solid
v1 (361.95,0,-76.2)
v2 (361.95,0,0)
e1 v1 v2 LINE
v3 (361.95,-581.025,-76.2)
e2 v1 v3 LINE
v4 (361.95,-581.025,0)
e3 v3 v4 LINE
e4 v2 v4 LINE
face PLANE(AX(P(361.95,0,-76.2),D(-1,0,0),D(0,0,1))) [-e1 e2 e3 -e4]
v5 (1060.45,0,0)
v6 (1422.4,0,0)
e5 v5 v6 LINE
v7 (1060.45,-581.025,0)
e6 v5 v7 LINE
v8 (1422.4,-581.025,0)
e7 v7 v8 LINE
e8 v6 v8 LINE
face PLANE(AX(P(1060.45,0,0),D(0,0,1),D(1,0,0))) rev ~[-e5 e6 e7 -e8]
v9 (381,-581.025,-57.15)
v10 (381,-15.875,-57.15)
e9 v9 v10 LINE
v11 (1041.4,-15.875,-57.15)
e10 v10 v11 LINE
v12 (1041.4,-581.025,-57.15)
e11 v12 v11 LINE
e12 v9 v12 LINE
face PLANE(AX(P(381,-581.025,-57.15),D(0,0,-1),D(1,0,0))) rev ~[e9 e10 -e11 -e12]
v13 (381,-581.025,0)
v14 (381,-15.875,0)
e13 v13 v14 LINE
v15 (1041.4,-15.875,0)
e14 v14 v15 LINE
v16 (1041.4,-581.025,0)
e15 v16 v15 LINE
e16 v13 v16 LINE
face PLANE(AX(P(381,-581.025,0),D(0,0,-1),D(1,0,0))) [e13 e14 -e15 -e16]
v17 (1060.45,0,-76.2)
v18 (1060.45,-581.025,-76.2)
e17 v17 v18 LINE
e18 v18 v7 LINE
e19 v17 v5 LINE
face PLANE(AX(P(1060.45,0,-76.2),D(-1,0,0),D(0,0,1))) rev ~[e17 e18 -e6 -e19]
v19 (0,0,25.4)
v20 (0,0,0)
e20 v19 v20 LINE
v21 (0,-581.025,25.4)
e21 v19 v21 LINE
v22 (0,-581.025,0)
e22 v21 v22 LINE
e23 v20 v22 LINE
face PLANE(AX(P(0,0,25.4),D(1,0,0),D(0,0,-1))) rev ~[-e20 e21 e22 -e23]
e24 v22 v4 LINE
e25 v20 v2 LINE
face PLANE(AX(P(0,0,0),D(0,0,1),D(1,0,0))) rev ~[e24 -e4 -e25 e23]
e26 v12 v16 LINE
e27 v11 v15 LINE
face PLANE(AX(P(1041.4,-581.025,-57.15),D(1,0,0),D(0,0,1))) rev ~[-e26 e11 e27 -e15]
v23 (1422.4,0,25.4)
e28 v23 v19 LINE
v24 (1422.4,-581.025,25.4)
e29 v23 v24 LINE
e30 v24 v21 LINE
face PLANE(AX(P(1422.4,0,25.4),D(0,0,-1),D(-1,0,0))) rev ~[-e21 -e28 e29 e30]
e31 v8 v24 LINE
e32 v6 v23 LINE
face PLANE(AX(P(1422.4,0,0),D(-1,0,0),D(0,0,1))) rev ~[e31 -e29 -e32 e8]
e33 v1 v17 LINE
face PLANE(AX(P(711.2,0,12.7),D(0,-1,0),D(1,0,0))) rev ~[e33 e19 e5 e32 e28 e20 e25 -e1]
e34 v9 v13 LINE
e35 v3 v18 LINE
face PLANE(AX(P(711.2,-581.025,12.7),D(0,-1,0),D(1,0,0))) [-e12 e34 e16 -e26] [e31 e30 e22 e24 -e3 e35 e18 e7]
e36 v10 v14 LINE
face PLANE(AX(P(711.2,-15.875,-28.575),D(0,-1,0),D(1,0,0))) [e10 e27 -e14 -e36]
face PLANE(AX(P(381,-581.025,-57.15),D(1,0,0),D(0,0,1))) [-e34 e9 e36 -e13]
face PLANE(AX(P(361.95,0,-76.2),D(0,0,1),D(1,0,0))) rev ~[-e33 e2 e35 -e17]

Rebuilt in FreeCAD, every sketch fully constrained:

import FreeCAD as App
import Part
import Sketcher
from FreeCAD import Vector
Q = App.Units.Quantity

doc = App.newDocument("Part")
body = doc.addObject("PartDesign::Body", "Body")

# Sketch on XZ plane
sketch1 = doc.addObject("Sketcher::SketchObject", "Sketch")
body.addObject(sketch1)
sketch1.AttachmentSupport = (doc.XZ_Plane, [""])
sketch1.MapMode = "FlatFace"
sketch1.addGeometry([
    Part.LineSegment(Vector(0, 25, 0), Vector(0, 0, 0)),  # 0
    Part.LineSegment(Vector(0, 0, 0), Vector(362, 0, 0)),  # 1
    Part.LineSegment(Vector(362, 0, 0), Vector(362, -76, 0)),  # 2
    Part.LineSegment(Vector(362, -76, 0), Vector(1060, -76, 0)),  # 3
    Part.LineSegment(Vector(1060, -76, 0), Vector(1060, 0, 0)),  # 4
    Part.LineSegment(Vector(1060, 0, 0), Vector(1422, 0, 0)),  # 5
    Part.LineSegment(Vector(1422, 0, 0), Vector(1422, 25, 0)),  # 6
    Part.LineSegment(Vector(1422, 25, 0), Vector(0, 25, 0)),  # 7
], False)
sketch1.addConstraint([
    Sketcher.Constraint("Coincident", 0, 2, 1, 1),
    Sketcher.Constraint("Coincident", 1, 2, 2, 1),
    Sketcher.Constraint("Coincident", 2, 2, 3, 1),
    Sketcher.Constraint("Coincident", 3, 2, 4, 1),
    Sketcher.Constraint("Coincident", 4, 2, 5, 1),
    Sketcher.Constraint("Coincident", 5, 2, 6, 1),
    Sketcher.Constraint("Coincident", 6, 2, 7, 1),
    Sketcher.Constraint("Coincident", 7, 2, 0, 1),
    Sketcher.Constraint("Vertical", 0),
    Sketcher.Constraint("Horizontal", 1),
    Sketcher.Constraint("Vertical", 2),
    Sketcher.Constraint("Horizontal", 3),
    Sketcher.Constraint("Vertical", 4),
    Sketcher.Constraint("Horizontal", 5),
    Sketcher.Constraint("Vertical", 6),
    Sketcher.Constraint("Horizontal", 7),
    Sketcher.Constraint("Coincident", 0, 2, -1, 1),
    Sketcher.Constraint("PointOnObject", 4, 2, -1),
    Sketcher.Constraint("Equal", 1, 5),
    Sketcher.Constraint("DistanceX", 7, 2, 7, 1, Q("56 in")),
    Sketcher.Constraint("DistanceY", 0, 2, 0, 1, Q("1 in")),
    Sketcher.Constraint("DistanceY", 2, 2, 2, 1, Q("3 in")),
    Sketcher.Constraint("DistanceX", 3, 1, 3, 2, Q("27.5 in")),
])
pad1 = doc.addObject("PartDesign::Pad", "Pad")
body.addObject(pad1)
pad1.Profile = sketch1
pad1.Length = Q("22.875 in")

# Sketch on XZ plane
sketch2 = doc.addObject("Sketcher::SketchObject", "Sketch001")
body.addObject(sketch2)
sketch2.AttachmentSupport = (doc.XZ_Plane, [""])
sketch2.MapMode = "FlatFace"
sketch2.AttachmentOffset = App.Placement(Vector(0, 0, 22.875 * 25.4), App.Rotation())
sketch2.addGeometry([
    Part.LineSegment(Vector(381, 0, 0), Vector(381, -57, 0)),
    Part.LineSegment(Vector(381, -57, 0), Vector(1041, -57, 0)),
    Part.LineSegment(Vector(1041, -57, 0), Vector(1041, 0, 0)),
    Part.LineSegment(Vector(1041, 0, 0), Vector(381, 0, 0)),
], False)
sketch2.addConstraint([
    Sketcher.Constraint("Coincident", 0, 2, 1, 1),
    Sketcher.Constraint("Coincident", 1, 2, 2, 1),
    Sketcher.Constraint("Coincident", 2, 2, 3, 1),
    Sketcher.Constraint("Coincident", 3, 2, 0, 1),
    Sketcher.Constraint("Vertical", 0),
    Sketcher.Constraint("Horizontal", 1),
    Sketcher.Constraint("Vertical", 2),
    Sketcher.Constraint("Horizontal", 3),
    Sketcher.Constraint("PointOnObject", 2, 2, -1),
    Sketcher.Constraint("DistanceX", 1, 1, 1, 2, Q("26 in")),
    Sketcher.Constraint("DistanceX", -1, 1, 0, 2, Q("15 in")),
    Sketcher.Constraint("DistanceY", 0, 2, 0, 1, Q("2.25 in")),
])
pocket1 = doc.addObject("PartDesign::Pocket", "Pocket")
body.addObject(pocket1)
pocket1.Profile = sketch2
pocket1.Length = Q("22.25 in")

doc.recompute()
